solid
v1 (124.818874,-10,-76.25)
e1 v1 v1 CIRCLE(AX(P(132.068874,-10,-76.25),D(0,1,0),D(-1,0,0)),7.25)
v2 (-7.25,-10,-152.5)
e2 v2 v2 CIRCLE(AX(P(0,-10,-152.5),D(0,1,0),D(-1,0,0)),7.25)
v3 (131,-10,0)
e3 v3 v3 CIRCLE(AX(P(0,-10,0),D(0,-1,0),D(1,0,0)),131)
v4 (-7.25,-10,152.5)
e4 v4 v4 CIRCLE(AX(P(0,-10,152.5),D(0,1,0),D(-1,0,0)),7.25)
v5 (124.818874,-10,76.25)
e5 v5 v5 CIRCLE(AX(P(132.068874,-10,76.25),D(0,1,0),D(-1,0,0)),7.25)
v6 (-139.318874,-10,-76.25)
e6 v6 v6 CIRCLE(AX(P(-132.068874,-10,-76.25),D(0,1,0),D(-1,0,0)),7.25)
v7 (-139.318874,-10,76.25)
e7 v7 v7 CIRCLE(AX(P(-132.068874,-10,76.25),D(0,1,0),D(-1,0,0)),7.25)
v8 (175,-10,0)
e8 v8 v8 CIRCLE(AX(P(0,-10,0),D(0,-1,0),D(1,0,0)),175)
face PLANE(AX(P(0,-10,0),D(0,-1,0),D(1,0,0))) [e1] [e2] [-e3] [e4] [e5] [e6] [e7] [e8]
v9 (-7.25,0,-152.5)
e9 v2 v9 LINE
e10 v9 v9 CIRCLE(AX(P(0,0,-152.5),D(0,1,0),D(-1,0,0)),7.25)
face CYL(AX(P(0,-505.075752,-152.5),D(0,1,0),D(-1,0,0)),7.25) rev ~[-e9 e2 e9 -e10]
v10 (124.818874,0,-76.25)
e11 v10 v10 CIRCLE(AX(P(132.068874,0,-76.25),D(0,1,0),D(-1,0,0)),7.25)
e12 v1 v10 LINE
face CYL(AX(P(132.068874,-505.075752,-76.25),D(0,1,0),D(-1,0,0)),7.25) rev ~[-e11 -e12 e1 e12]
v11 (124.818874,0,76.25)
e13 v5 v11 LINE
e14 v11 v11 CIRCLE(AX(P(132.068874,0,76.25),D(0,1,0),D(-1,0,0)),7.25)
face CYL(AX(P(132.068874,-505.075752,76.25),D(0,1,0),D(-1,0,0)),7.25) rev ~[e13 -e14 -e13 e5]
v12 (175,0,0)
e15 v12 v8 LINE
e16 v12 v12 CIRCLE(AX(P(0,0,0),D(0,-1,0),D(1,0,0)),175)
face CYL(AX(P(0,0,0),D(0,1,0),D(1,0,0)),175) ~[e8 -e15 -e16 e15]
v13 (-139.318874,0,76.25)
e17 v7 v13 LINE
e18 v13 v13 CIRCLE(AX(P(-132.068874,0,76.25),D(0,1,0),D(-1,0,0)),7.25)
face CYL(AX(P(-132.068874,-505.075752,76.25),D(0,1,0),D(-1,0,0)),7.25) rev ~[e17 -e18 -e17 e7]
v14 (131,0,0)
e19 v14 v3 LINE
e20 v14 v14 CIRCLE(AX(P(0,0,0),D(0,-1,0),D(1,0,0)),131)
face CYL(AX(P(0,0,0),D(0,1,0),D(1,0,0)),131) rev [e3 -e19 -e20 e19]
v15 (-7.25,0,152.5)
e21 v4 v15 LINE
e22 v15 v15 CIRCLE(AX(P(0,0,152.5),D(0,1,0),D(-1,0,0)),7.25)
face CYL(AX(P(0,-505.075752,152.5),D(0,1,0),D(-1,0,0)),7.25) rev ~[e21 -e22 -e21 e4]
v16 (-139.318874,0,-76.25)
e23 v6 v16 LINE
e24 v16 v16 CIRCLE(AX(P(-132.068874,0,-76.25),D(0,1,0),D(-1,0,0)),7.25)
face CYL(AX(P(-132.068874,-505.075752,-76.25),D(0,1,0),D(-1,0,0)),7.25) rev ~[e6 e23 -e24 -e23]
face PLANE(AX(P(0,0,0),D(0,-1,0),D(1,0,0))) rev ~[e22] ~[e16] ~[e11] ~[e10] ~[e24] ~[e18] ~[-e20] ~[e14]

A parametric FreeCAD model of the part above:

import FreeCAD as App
import Part
import Sketcher

V = App.Vector
Q = App.Units.Quantity

doc = App.newDocument("Part")
body = doc.addObject("PartDesign::Body", "Body")

# Sketch on XZ plane
sketch1 = body.newObject("Sketcher::SketchObject", "Sketch")
sketch1.AttachmentSupport = (doc.getObject("XZ_Plane"), [""])
sketch1.MapMode = "FlatFace"
sketch1.addGeometry(Part.Circle(V(0, 0, 0), V(0, 0, 1), 175), False)
sketch1.addGeometry(Part.Circle(V(0, 0, 0), V(0, 0, 1), 131), False)
sketch1.addConstraint(Sketcher.Constraint("Coincident", 0, 3, -1, 1))
sketch1.addConstraint(Sketcher.Constraint("Coincident", 1, 3, -1, 1))
sketch1.addConstraint(Sketcher.Constraint("Diameter", 0, Q("350 mm")))
sketch1.addConstraint(Sketcher.Constraint("Diameter", 1, Q("262 mm")))
pad1 = body.newObject("PartDesign::Pad", "Pad")
pad1.Profile = sketch1
pad1.Length = 10

# Sketch on XZ plane
sketch2 = body.newObject("Sketcher::SketchObject", "Sketch001")
sketch2.AttachmentSupport = (doc.getObject("XZ_Plane"), [""])
sketch2.MapMode = "FlatFace"
sketch2.AttachmentOffset = App.Placement(V(0, 0, 10), App.Rotation())
sketch2.addGeometry(Part.Circle(V(0, 152, 0), V(0, 0, 1), 7), False)
sketch2.addGeometry(Part.Circle(V(-132, 76, 0), V(0, 0, 1), 7), False)
sketch2.addGeometry(Part.Circle(V(-132, -76, 0), V(0, 0, 1), 7), False)
sketch2.addGeometry(Part.Circle(V(0, -152, 0), V(0, 0, 1), 7), False)
sketch2.addGeometry(Part.Circle(V(132, -76, 0), V(0, 0, 1), 7), False)
sketch2.addGeometry(Part.Circle(V(132, 76, 0), V(0, 0, 1), 7), False)
sketch2.addConstraint(Sketcher.Constraint("Equal", 0, 1))
sketch2.addConstraint(Sketcher.Constraint("Equal", 1, 2))
sketch2.addConstraint(Sketcher.Constraint("Equal", 2, 3))
sketch2.addConstraint(Sketcher.Constraint("Equal", 3, 4))
sketch2.addConstraint(Sketcher.Constraint("Equal", 4, 5))
sketch2.addConstraint(Sketcher.Constraint("Symmetric", 0, 3, 3, 3, -1, 1))
sketch2.addConstraint(Sketcher.Constraint("Symmetric", 1, 3, 4, 3, -1, 1))
sketch2.addConstraint(Sketcher.Constraint("Symmetric", 2, 3, 5, 3, -1, 1))
sketch2.addConstraint(Sketcher.Constraint("Symmetric", 2, 3, 4, 3, -2))
sketch2.addConstraint(Sketcher.Constraint("PointOnObject", 0, 3, -2))
sketch2.addConstraint(Sketcher.Constraint("Diameter", 0, Q("14.5 mm")))
sketch2.addConstraint(Sketcher.Constraint("DistanceY", 3, 3, 0, 3, Q("305 mm")))
sketch2.addConstraint(Sketcher.Constraint("DistanceY", 2, 3, 1, 3, Q("152.5 mm")))
sketch2.addConstraint(Sketcher.Constraint("DistanceX", 2, 3, 4, 3, Q("264.137748 mm")))
doc.recompute()
hole = body.newObject("PartDesign::Hole", "Hole")
hole.Profile = sketch2
hole.ThreadType = "None"
hole.Diameter = 14.5
hole.DepthType = "ThroughAll"

doc.recompute()
